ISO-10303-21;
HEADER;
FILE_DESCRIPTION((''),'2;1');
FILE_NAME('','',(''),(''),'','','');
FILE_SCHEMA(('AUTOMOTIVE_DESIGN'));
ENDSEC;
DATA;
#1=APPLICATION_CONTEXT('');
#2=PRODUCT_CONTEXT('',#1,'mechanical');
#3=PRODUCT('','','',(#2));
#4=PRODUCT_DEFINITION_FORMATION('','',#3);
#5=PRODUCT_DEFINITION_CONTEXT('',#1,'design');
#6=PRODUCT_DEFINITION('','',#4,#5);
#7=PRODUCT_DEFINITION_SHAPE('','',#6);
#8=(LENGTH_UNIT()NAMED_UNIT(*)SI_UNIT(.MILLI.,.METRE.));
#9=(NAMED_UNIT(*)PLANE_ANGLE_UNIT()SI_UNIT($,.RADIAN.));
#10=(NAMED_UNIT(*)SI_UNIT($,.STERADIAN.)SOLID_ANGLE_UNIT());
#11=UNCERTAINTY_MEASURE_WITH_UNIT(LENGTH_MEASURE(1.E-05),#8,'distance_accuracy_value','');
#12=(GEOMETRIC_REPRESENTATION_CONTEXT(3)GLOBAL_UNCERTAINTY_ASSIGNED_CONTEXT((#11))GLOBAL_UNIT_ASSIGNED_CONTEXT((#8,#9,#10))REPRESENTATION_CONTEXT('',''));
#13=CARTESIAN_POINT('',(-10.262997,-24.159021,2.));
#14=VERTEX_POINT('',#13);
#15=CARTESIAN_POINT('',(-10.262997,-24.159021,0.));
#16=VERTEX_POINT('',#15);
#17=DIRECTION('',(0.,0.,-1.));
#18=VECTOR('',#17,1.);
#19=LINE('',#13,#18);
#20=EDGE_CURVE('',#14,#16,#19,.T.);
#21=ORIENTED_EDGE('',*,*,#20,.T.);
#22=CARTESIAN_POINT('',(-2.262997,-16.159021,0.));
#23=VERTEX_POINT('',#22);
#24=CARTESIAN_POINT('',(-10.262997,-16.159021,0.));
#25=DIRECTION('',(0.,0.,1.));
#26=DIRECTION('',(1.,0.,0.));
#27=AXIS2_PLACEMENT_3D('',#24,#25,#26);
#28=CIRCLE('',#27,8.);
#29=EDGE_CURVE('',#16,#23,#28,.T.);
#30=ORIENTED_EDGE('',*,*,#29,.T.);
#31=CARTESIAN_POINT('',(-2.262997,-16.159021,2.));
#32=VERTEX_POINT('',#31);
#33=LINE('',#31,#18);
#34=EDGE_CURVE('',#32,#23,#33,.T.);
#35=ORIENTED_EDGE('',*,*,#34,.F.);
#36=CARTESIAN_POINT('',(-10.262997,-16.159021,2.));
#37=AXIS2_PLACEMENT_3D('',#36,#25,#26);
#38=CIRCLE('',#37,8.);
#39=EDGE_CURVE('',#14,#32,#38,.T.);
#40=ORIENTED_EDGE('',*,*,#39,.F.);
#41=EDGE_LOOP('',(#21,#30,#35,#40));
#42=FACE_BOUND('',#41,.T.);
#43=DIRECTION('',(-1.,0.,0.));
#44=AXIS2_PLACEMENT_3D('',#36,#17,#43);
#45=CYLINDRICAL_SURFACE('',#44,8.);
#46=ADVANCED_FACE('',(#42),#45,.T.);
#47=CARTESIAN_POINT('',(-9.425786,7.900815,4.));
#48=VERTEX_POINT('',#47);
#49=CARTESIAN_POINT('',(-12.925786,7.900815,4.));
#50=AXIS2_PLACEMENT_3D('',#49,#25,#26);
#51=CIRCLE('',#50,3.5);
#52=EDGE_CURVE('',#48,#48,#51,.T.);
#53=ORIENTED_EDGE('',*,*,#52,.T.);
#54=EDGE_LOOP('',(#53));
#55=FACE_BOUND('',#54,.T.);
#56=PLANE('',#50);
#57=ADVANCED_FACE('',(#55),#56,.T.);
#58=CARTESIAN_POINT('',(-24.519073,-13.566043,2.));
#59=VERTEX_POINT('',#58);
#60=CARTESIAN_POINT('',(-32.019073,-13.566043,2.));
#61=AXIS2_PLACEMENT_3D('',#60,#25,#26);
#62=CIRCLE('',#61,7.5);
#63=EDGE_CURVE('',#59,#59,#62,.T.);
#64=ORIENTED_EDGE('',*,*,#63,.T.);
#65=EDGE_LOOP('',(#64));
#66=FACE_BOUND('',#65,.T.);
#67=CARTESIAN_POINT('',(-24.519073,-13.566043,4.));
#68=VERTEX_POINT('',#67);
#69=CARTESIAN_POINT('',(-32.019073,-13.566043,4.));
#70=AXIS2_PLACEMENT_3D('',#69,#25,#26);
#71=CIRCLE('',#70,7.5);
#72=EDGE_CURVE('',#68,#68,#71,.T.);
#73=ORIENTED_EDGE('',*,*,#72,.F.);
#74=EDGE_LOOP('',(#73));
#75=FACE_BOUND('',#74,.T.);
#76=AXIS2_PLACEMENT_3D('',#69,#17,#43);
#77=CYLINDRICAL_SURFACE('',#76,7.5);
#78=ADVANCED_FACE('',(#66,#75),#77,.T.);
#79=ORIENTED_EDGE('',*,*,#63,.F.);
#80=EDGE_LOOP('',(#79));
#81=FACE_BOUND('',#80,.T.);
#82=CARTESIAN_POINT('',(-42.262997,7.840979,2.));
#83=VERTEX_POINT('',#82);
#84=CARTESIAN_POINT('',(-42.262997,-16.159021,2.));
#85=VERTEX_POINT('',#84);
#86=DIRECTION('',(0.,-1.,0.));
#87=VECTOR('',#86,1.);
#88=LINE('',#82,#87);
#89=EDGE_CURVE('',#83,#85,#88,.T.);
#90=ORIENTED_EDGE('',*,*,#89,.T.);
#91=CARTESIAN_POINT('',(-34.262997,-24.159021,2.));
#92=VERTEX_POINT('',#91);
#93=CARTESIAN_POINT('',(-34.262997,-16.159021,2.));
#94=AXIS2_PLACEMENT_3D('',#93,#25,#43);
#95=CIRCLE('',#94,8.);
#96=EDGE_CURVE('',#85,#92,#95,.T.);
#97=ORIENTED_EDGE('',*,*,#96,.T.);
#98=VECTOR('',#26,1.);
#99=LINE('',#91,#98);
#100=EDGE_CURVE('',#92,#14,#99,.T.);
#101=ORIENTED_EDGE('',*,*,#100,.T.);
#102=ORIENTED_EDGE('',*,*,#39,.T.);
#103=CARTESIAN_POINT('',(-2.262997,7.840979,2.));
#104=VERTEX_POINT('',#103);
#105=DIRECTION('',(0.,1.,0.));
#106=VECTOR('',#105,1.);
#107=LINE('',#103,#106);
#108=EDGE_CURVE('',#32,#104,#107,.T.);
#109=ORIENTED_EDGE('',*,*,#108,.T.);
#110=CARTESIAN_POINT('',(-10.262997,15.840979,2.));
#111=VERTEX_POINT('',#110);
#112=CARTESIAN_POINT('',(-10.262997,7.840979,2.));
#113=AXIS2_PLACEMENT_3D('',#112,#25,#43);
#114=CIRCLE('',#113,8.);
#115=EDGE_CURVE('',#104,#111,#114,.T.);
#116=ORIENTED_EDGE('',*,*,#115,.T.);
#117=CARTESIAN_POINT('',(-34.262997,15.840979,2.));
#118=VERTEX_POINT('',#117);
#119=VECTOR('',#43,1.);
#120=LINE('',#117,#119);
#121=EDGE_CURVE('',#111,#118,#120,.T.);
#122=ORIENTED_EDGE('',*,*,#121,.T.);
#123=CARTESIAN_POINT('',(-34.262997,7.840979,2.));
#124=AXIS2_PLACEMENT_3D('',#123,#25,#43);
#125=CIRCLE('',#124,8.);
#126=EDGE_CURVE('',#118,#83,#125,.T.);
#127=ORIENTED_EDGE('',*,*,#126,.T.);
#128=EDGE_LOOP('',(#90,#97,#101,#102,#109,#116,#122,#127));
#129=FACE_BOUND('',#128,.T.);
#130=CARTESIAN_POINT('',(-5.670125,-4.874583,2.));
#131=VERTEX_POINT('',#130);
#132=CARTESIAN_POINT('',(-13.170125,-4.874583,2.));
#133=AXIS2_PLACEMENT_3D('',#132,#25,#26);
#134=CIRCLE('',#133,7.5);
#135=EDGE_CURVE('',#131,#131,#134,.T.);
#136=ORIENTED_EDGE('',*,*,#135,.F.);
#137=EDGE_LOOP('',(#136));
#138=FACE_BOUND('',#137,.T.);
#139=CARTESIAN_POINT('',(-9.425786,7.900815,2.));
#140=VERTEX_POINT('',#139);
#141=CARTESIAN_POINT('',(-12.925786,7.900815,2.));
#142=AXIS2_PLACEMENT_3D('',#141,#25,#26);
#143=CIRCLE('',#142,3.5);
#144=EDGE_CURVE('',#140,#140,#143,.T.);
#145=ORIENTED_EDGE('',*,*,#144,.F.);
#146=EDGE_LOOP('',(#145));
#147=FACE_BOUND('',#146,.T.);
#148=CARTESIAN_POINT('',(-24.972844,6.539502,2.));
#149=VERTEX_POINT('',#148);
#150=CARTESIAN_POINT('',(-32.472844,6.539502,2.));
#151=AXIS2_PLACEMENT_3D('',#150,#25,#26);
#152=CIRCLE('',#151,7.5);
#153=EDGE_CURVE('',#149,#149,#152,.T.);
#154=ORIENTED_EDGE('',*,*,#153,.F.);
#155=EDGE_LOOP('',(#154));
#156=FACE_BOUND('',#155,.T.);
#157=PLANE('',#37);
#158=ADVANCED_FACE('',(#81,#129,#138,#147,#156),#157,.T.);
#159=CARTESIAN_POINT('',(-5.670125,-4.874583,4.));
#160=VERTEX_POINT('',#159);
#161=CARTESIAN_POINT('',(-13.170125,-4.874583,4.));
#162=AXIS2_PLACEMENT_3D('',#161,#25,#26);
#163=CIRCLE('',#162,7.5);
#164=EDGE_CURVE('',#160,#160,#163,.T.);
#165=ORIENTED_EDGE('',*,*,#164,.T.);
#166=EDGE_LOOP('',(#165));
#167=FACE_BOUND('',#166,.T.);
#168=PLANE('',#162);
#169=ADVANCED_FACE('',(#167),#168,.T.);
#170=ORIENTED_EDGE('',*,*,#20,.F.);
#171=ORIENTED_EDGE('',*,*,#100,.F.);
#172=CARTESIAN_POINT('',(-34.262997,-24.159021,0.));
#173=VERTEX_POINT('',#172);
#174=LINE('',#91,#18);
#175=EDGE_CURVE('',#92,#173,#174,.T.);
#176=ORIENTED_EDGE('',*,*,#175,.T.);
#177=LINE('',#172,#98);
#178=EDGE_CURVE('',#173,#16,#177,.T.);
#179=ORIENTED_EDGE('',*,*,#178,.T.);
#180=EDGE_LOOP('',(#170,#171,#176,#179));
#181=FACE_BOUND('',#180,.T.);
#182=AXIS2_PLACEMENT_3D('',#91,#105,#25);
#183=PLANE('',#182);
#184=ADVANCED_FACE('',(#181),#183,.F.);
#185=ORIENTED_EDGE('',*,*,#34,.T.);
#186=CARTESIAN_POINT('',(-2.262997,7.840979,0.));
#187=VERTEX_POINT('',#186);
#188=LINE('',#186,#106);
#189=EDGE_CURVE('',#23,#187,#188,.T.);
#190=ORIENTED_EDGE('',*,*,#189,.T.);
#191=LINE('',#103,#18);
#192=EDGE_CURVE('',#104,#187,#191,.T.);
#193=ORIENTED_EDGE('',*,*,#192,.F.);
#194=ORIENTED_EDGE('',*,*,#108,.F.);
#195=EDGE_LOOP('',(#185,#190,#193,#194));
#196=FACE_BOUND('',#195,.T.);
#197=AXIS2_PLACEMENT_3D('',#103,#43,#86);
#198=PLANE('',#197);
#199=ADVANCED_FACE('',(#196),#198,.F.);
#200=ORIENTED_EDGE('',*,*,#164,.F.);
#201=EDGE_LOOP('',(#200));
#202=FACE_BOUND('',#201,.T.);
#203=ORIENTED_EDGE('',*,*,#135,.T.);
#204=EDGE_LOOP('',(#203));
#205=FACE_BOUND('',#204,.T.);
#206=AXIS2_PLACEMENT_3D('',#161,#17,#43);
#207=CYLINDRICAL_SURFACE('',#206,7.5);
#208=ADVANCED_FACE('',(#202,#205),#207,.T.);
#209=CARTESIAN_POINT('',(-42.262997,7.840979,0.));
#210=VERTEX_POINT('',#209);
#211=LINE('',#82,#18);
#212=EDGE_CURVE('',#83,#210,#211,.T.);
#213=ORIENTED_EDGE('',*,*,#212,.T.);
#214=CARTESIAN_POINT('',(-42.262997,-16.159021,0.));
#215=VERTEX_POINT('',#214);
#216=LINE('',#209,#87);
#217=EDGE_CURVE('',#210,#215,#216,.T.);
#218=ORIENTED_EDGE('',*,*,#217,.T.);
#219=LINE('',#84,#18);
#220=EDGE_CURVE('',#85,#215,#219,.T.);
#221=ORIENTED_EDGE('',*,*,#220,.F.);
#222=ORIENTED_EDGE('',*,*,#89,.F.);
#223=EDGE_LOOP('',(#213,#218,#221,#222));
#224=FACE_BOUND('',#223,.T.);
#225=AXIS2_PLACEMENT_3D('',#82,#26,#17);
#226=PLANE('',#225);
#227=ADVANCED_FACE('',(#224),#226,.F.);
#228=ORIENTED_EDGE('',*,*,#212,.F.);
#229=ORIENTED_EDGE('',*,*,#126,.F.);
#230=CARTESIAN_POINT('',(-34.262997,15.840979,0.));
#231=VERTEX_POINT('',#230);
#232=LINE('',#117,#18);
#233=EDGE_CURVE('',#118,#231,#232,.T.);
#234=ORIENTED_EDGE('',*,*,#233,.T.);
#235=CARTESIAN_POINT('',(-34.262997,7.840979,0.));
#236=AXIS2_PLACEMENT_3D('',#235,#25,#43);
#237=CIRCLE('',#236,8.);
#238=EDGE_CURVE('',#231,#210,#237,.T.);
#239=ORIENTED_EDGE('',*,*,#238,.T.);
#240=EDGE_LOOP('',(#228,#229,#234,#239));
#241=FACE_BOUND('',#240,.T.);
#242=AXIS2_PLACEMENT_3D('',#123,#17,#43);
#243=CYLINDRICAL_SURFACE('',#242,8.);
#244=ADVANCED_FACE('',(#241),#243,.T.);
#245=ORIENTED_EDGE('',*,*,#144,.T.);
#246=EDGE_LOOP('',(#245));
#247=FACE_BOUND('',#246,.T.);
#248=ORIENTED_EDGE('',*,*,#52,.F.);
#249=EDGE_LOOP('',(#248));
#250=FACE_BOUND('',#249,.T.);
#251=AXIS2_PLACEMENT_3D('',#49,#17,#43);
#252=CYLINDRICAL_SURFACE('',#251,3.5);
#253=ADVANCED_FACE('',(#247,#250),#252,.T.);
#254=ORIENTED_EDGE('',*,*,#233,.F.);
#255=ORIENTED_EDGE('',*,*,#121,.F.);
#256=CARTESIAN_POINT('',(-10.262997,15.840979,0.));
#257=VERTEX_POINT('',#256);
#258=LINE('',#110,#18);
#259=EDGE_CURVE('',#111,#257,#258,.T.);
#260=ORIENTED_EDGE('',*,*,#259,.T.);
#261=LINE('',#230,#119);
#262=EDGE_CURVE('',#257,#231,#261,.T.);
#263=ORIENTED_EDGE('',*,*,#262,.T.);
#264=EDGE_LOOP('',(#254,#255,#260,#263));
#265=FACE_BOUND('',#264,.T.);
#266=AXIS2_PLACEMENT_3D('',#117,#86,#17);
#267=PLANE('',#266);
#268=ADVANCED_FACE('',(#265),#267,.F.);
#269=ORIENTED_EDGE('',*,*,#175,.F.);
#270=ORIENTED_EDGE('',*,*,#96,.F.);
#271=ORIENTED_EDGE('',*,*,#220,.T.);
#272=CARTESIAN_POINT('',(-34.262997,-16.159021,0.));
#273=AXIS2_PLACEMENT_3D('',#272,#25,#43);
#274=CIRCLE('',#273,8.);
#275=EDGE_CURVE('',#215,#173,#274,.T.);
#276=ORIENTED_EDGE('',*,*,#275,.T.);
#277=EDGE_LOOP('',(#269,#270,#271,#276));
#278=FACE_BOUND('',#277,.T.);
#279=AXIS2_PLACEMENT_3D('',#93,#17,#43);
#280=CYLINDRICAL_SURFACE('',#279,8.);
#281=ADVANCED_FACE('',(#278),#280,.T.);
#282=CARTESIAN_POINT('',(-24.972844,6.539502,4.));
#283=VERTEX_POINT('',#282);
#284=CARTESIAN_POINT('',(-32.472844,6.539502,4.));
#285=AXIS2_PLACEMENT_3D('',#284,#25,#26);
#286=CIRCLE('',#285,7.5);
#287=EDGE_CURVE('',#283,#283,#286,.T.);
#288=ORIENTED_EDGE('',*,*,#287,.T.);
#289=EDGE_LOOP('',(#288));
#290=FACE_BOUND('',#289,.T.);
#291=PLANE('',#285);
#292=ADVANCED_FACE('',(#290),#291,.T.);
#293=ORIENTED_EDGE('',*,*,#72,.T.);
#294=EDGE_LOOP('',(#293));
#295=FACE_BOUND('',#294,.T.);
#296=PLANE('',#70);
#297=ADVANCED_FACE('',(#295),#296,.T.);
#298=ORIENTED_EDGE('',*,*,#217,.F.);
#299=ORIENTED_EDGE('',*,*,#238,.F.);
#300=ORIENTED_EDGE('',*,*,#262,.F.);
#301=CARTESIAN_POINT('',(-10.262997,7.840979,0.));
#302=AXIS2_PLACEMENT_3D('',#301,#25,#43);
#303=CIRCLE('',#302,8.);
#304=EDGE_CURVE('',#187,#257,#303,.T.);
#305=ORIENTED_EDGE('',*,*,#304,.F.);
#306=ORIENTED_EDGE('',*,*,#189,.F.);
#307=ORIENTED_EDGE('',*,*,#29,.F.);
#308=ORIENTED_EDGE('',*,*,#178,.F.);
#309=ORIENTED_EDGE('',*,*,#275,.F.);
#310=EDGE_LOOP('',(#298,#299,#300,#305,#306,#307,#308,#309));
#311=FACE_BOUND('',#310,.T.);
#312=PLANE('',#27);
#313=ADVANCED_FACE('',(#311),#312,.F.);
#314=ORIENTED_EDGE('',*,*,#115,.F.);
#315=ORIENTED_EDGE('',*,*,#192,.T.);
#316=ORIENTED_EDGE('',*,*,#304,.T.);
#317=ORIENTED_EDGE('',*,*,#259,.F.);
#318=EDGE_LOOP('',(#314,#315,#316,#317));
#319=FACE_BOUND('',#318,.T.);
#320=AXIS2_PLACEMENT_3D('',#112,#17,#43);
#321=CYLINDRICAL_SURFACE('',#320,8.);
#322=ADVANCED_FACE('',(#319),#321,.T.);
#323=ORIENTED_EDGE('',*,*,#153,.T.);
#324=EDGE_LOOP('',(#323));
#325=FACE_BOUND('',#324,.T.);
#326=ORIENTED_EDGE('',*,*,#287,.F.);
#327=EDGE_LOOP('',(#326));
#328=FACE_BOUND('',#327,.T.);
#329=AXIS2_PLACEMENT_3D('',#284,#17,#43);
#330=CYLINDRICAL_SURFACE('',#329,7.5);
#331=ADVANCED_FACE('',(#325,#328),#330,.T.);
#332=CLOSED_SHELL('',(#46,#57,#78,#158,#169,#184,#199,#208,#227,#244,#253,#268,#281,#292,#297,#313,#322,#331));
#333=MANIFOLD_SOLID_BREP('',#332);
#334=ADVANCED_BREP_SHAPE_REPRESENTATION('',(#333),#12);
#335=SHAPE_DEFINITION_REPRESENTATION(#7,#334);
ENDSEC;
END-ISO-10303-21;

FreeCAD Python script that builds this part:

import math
import FreeCAD as App
import Part
import Sketcher

V = App.Vector
Q = App.Units.Quantity

doc = App.newDocument("Part")
body = doc.addObject("PartDesign::Body", "Body")

# Sketch on XY plane
sketch1 = doc.addObject("Sketcher::SketchObject", "Sketch")
body.addObject(sketch1)
sketch1.AttachmentSupport = (doc.XY_Plane, [""])
sketch1.MapMode = "FlatFace"
sketch1.addGeometry([
    Part.LineSegment(V(-10, 16, 0), V(-34, 16, 0)),  # 0
    Part.ArcOfCircle(Part.Circle(V(-34, 8, 0), V(0, 0, 1), 8), math.radians(90), math.radians(180)),  # 1
    Part.LineSegment(V(-42, 8, 0), V(-42, -16, 0)),  # 2
    Part.ArcOfCircle(Part.Circle(V(-34, -16, 0), V(0, 0, 1), 8), math.radians(-180), math.radians(-90)),  # 3
    Part.LineSegment(V(-34, -24, 0), V(-10, -24, 0)),  # 4
    Part.ArcOfCircle(Part.Circle(V(-10, -16, 0), V(0, 0, 1), 8), math.radians(-90), math.radians(0)),  # 5
    Part.LineSegment(V(-2, -16, 0), V(-2, 8, 0)),  # 6
    Part.ArcOfCircle(Part.Circle(V(-10, 8, 0), V(0, 0, 1), 8), math.radians(0), math.radians(90)),  # 7
], False)
sketch1.addConstraint([
    Sketcher.Constraint("Tangent", 0, 2, 1, 1),
    Sketcher.Constraint("Tangent", 1, 2, 2, 1),
    Sketcher.Constraint("Tangent", 2, 2, 3, 1),
    Sketcher.Constraint("Tangent", 3, 2, 4, 1),
    Sketcher.Constraint("Tangent", 4, 2, 5, 1),
    Sketcher.Constraint("Tangent", 5, 2, 6, 1),
    Sketcher.Constraint("Tangent", 6, 2, 7, 1),
    Sketcher.Constraint("Tangent", 7, 2, 0, 1),
    Sketcher.Constraint("Horizontal", 0),
    Sketcher.Constraint("Vertical", 2),
    Sketcher.Constraint("Horizontal", 4),
    Sketcher.Constraint("Vertical", 6),
    Sketcher.Constraint("Equal", 1, 3),
    Sketcher.Constraint("Equal", 3, 5),
    Sketcher.Constraint("Equal", 5, 7),
    Sketcher.Constraint("Equal", 4, 2),
    Sketcher.Constraint("Radius", 1, Q("8 mm")),
    Sketcher.Constraint("DistanceX", 0, 2, 0, 1, Q("24 mm")),
    Sketcher.Constraint("DistanceY", -1, 1, 1, 3, Q("7.840979 mm")),
    Sketcher.Constraint("DistanceX", 1, 3, -1, 1, Q("34.262997 mm")),
])
pad1 = doc.addObject("PartDesign::Pad", "Pad")
body.addObject(pad1)
pad1.Profile = sketch1
pad1.Length = 2

# Sketch on XY plane
sketch2 = doc.addObject("Sketcher::SketchObject", "Sketch001")
body.addObject(sketch2)
sketch2.AttachmentSupport = (doc.XY_Plane, [""])
sketch2.MapMode = "FlatFace"
sketch2.AttachmentOffset = App.Placement(V(0, 0, 2), App.Rotation())
sketch2.addGeometry([
    Part.Circle(V(-32.5, 6.5, 0), V(0, 0, 1), 7.5),
    Part.Circle(V(-32, -13.6, 0), V(0, 0, 1), 7.5),
    Part.Circle(V(-13.2, -4.9, 0), V(0, 0, 1), 7.5),
    Part.Circle(V(-12.9, 7.9, 0), V(0, 0, 1), 3.5),
], False)
sketch2.addConstraint([
    Sketcher.Constraint("Equal", 0, 1),
    Sketcher.Constraint("Equal", 1, 2),
    Sketcher.Constraint("Diameter", 0, Q("15 mm")),
    Sketcher.Constraint("Diameter", 3, Q("7 mm")),
    Sketcher.Constraint("DistanceY", -1, 1, 0, 3, Q("6.539502 mm")),
    Sketcher.Constraint("DistanceY", 2, 3, 3, 3, Q("12.775398 mm")),
    Sketcher.Constraint("DistanceX", 0, 3, 1, 3, Q("0.453771 mm")),
    Sketcher.Constraint("DistanceX", 1, 3, 2, 3, Q("18.848948 mm")),
    Sketcher.Constraint("DistanceY", 1, 3, 2, 3, Q("8.691459 mm")),
    Sketcher.Constraint("DistanceX", 2, 3, 3, 3, Q("0.244338 mm")),
    Sketcher.Constraint("DistanceX", 0, 3, -1, 1, Q("32.472844 mm")),
    Sketcher.Constraint("DistanceY", 1, 3, -1, 1, Q("13.566043 mm")),
])
pad2 = doc.addObject("PartDesign::Pad", "Pad001")
body.addObject(pad2)
pad2.Profile = sketch2
pad2.Length = 2

doc.recompute()
